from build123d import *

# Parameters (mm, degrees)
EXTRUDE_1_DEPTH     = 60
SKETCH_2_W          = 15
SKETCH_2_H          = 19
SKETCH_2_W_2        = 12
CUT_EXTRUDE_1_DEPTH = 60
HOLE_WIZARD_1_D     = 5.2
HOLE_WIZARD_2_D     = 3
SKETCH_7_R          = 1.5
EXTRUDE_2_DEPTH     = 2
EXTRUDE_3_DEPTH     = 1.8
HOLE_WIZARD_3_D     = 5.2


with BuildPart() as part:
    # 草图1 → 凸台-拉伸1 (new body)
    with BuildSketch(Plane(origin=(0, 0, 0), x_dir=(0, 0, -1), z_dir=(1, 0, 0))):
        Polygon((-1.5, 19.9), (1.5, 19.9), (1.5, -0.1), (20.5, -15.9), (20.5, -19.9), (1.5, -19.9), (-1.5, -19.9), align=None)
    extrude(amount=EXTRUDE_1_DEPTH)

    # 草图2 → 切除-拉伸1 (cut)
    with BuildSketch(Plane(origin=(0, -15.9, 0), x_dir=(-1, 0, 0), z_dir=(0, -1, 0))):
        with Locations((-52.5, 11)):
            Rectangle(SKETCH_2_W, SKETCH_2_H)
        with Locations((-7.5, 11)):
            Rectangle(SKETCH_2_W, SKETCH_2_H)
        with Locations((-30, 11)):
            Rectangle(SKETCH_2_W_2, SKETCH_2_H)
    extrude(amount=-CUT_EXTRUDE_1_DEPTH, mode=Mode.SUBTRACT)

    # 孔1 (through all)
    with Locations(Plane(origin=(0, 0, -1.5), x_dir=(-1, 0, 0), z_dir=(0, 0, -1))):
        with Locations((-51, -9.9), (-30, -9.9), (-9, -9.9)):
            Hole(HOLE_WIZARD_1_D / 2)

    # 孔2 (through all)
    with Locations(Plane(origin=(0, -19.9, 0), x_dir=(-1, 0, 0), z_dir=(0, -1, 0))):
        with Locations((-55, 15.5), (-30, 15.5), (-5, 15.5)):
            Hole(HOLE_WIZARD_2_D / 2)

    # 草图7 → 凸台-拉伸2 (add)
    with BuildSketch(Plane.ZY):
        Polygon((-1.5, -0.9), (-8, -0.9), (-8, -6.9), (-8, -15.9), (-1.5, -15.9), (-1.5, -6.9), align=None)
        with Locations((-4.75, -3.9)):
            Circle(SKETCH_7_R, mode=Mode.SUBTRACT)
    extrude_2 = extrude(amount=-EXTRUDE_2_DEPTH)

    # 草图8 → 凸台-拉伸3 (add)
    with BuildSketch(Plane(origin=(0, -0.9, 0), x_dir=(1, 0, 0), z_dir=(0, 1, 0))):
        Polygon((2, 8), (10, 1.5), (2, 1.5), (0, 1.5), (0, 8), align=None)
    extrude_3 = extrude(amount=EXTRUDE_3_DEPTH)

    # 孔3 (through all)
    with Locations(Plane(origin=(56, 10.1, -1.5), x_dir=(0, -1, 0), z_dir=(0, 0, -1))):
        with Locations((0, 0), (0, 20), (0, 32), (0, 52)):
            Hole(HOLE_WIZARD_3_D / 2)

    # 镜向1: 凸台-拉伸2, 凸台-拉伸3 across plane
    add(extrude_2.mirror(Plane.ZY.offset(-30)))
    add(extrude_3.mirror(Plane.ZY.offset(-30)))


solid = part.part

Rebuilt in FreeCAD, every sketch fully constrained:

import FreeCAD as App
import Part
import Sketcher

V = App.Vector

doc = App.newDocument("Part")
body = doc.addObject("PartDesign::Body", "Body")

sketch1 = doc.addObject("Sketcher::SketchObject", "Sketch")
body.addObject(sketch1)
sketch1.AttachmentSupport = (doc.YZ_Plane, [""])
sketch1.MapMode = "FlatFace"
sketch1.addGeometry(Part.LineSegment(V(19.9, -1.5, 0), V(19.9, 1.5, 0)), False)
sketch1.addGeometry(Part.LineSegment(V(19.9, 1.5, 0), V(-19.9, 1.5, 0)), False)
sketch1.addGeometry(Part.LineSegment(V(-19.9, 1.5, 0), V(-19.9, -20.5, 0)), False)
sketch1.addGeometry(Part.LineSegment(V(-19.9, -20.5, 0), V(-15.9, -20.5, 0)), False)
sketch1.addGeometry(Part.LineSegment(V(-15.9, -20.5, 0), V(-0.1, -1.5, 0)), False)
sketch1.addGeometry(Part.LineSegment(V(-0.1, -1.5, 0), V(19.9, -1.5, 0)), False)
sketch1.addConstraint(Sketcher.Constraint("Coincident", 0, 2, 1, 1))
sketch1.addConstraint(Sketcher.Constraint("Coincident", 1, 2, 2, 1))
sketch1.addConstraint(Sketcher.Constraint("Coincident", 2, 2, 3, 1))
sketch1.addConstraint(Sketcher.Constraint("Coincident", 3, 2, 4, 1))
sketch1.addConstraint(Sketcher.Constraint("Coincident", 4, 2, 5, 1))
sketch1.addConstraint(Sketcher.Constraint("Coincident", 5, 2, 0, 1))
sketch1.addConstraint(Sketcher.Constraint("Vertical", 0))
sketch1.addConstraint(Sketcher.Constraint("Horizontal", 1))
sketch1.addConstraint(Sketcher.Constraint("Vertical", 2))
sketch1.addConstraint(Sketcher.Constraint("Horizontal", 3))
sketch1.addConstraint(Sketcher.Constraint("Horizontal", 5))
sketch1.addConstraint(Sketcher.Constraint("Symmetric", 1, 2, 5, 2, -1, 1))
sketch1.addConstraint(Sketcher.Constraint("DistanceX", 3, 1, 3, 2, 4.0))
sketch1.addConstraint(Sketcher.Constraint("DistanceX", 5, 1, 5, 2, 20.0))
sketch1.addConstraint(Sketcher.Constraint("DistanceY", 0, 1, 0, 2, 3.0))
sketch1.addConstraint(Sketcher.Constraint("DistanceY", 2, 2, 2, 1, 22.0))
sketch1.addConstraint(Sketcher.Constraint("DistanceX", 1, 2, 1, 1, 39.8))
pad1 = doc.addObject("PartDesign::Pad", "Pad")
body.addObject(pad1)
pad1.Profile = sketch1
pad1.Length = 60

sketch2 = doc.addObject("Sketcher::SketchObject", "Sketch001")
body.addObject(sketch2)
sketch2.AttachmentSupport = (doc.XZ_Plane, [""])
sketch2.MapMode = "FlatFace"
sketch2.AttachmentOffset = App.Placement(V(0, 0, 15.9), App.Rotation())
sketch2.addGeometry(Part.LineSegment(V(60, -20, 0), V(60, -2, 0)), False)
sketch2.addGeometry(Part.LineSegment(V(60, -2, 0), V(45, -2, 0)), False)
sketch2.addGeometry(Part.LineSegment(V(45, -2, 0), V(45, -20, 0)), False)
sketch2.addGeometry(Part.LineSegment(V(45, -20, 0), V(60, -20, 0)), False)
sketch2.addGeometry(Part.LineSegment(V(15, -20, 0), V(15, -2, 0)), False)
sketch2.addGeometry(Part.LineSegment(V(15, -2, 0), V(0, -2, 0)), False)
sketch2.addGeometry(Part.LineSegment(V(0, -2, 0), V(0, -20, 0)), False)
sketch2.addGeometry(Part.LineSegment(V(0, -20, 0), V(15, -20, 0)), False)
sketch2.addGeometry(Part.LineSegment(V(36, -20, 0), V(36, -2, 0)), False)
sketch2.addGeometry(Part.LineSegment(V(36, -2, 0), V(24, -2, 0)), False)
sketch2.addGeometry(Part.LineSegment(V(24, -2, 0), V(24, -20, 0)), False)
sketch2.addGeometry(Part.LineSegment(V(24, -20, 0), V(36, -20, 0)), False)
sketch2.addConstraint(Sketcher.Constraint("Coincident", 0, 2, 1, 1))
sketch2.addConstraint(Sketcher.Constraint("Coincident", 1, 2, 2, 1))
sketch2.addConstraint(Sketcher.Constraint("Coincident", 2, 2, 3, 1))
sketch2.addConstraint(Sketcher.Constraint("Coincident", 3, 2, 0, 1))
sketch2.addConstraint(Sketcher.Constraint("Coincident", 4, 2, 5, 1))
sketch2.addConstraint(Sketcher.Constraint("Coincident", 5, 2, 6, 1))
sketch2.addConstraint(Sketcher.Constraint("Coincident", 6, 2, 7, 1))
sketch2.addConstraint(Sketcher.Constraint("Coincident", 7, 2, 4, 1))
sketch2.addConstraint(Sketcher.Constraint("Coincident", 8, 2, 9, 1))
sketch2.addConstraint(Sketcher.Constraint("Coincident", 9, 2, 10, 1))
sketch2.addConstraint(Sketcher.Constraint("Coincident", 10, 2, 11, 1))
sketch2.addConstraint(Sketcher.Constraint("Coincident", 11, 2, 8, 1))
sketch2.addConstraint(Sketcher.Constraint("Vertical", 0))
sketch2.addConstraint(Sketcher.Constraint("Horizontal", 1))
sketch2.addConstraint(Sketcher.Constraint("Vertical", 2))
sketch2.addConstraint(Sketcher.Constraint("Horizontal", 3))
sketch2.addConstraint(Sketcher.Constraint("Vertical", 4))
sketch2.addConstraint(Sketcher.Constraint("Horizontal", 5))
sketch2.addConstraint(Sketcher.Constraint("Vertical", 6))
sketch2.addConstraint(Sketcher.Constraint("Horizontal", 7))
sketch2.addConstraint(Sketcher.Constraint("Vertical", 8))
sketch2.addConstraint(Sketcher.Constraint("Horizontal", 9))
sketch2.addConstraint(Sketcher.Constraint("Vertical", 10))
sketch2.addConstraint(Sketcher.Constraint("Horizontal", 11))
sketch2.addConstraint(Sketcher.Constraint("PointOnObject", 5, 2, -2))
sketch2.addConstraint(Sketcher.Constraint("Horizontal", 1, 2, 4, 2))
sketch2.addConstraint(Sketcher.Constraint("Horizontal", 3, 2, 6, 2))
sketch2.addConstraint(Sketcher.Constraint("Horizontal", 5, 2, 8, 2))
sketch2.addConstraint(Sketcher.Constraint("Horizontal", 7, 2, 10, 2))
sketch2.addConstraint(Sketcher.Constraint("Equal", 3, 5))
sketch2.addConstraint(Sketcher.Constraint("DistanceX", 1, 2, 1, 1, 15.0))
sketch2.addConstraint(Sketcher.Constraint("DistanceX", 9, 2, 9, 1, 12.0))
sketch2.addConstraint(Sketcher.Constraint("DistanceY", 0, 1, 0, 2, 19.0))
sketch2.addConstraint(Sketcher.Constraint("DistanceX", -1, 1, 0, 2, 60.0))
sketch2.addConstraint(Sketcher.Constraint("DistanceX", -1, 1, 8, 2, 36.0))
sketch2.addConstraint(Sketcher.Constraint("DistanceY", 0, 2, -1, 1, 1.5))
pocket1 = doc.addObject("PartDesign::Pocket", "Pocket")
body.addObject(pocket1)
pocket1.Profile = sketch2
pocket1.Length = 60

sketch3 = doc.addObject("Sketcher::SketchObject", "Sketch002")
body.addObject(sketch3)
sketch3.AttachmentSupport = (doc.XY_Plane, [""])
sketch3.MapMode = "FlatFace"
sketch3.AttachmentOffset = App.Placement(V(0, 0, -1.5), App.Rotation())
sketch3.addGeometry(Part.Circle(V(51, -9.9, 0), V(0, 0, 1), 2.6), False)
sketch3.addGeometry(Part.Circle(V(30, -9.9, 0), V(0, 0, 1), 2.6), False)
sketch3.addGeometry(Part.Circle(V(9, -9.9, 0), V(0, 0, 1), 2.6), False)
sketch3.addConstraint(Sketcher.Constraint("Equal", 0, 1))
sketch3.addConstraint(Sketcher.Constraint("Equal", 1, 2))
sketch3.addConstraint(Sketcher.Constraint("Horizontal", 0, 3, 1, 3))
sketch3.addConstraint(Sketcher.Constraint("Horizontal", 1, 3, 2, 3))
sketch3.addConstraint(Sketcher.Constraint("Diameter", 0, 5.2))
sketch3.addConstraint(Sketcher.Constraint("DistanceX", -1, 1, 0, 3, 51.0))
sketch3.addConstraint(Sketcher.Constraint("DistanceX", -1, 1, 1, 3, 30.0))
sketch3.addConstraint(Sketcher.Constraint("DistanceX", -1, 1, 2, 3, 9.0))
sketch3.addConstraint(Sketcher.Constraint("DistanceY", 0, 3, -1, 1, 9.9))
doc.recompute()
hole = doc.addObject("PartDesign::Hole", "Hole")
body.addObject(hole)
hole.Profile = sketch3
hole.ThreadType = "None"
hole.Diameter = 5.2
hole.DepthType = "ThroughAll"
hole.Reversed = True

sketch4 = doc.addObject("Sketcher::SketchObject", "Sketch003")
body.addObject(sketch4)
sketch4.AttachmentSupport = (doc.XZ_Plane, [""])
sketch4.MapMode = "FlatFace"
sketch4.AttachmentOffset = App.Placement(V(0, 0, 19.9), App.Rotation())
sketch4.addGeometry(Part.Circle(V(55, -15.5, 0), V(0, 0, 1), 1.5), False)
sketch4.addGeometry(Part.Circle(V(30, -15.5, 0), V(0, 0, 1), 1.5), False)
sketch4.addGeometry(Part.Circle(V(5, -15.5, 0), V(0, 0, 1), 1.5), False)
sketch4.addConstraint(Sketcher.Constraint("Equal", 0, 1))
sketch4.addConstraint(Sketcher.Constraint("Equal", 1, 2))
sketch4.addConstraint(Sketcher.Constraint("Horizontal", 0, 3, 1, 3))
sketch4.addConstraint(Sketcher.Constraint("Horizontal", 1, 3, 2, 3))
sketch4.addConstraint(Sketcher.Constraint("Diameter", 0, 3.0))
sketch4.addConstraint(Sketcher.Constraint("DistanceX", -1, 1, 0, 3, 55.0))
sketch4.addConstraint(Sketcher.Constraint("DistanceX", -1, 1, 1, 3, 30.0))
sketch4.addConstraint(Sketcher.Constraint("DistanceX", -1, 1, 2, 3, 5.0))
sketch4.addConstraint(Sketcher.Constraint("DistanceY", 0, 3, -1, 1, 15.5))
doc.recompute()
hole2 = doc.addObject("PartDesign::Hole", "Hole001")
body.addObject(hole2)
hole2.Profile = sketch4
hole2.ThreadType = "None"
hole2.Diameter = 3
hole2.DepthType = "ThroughAll"

sketch5 = doc.addObject("Sketcher::SketchObject", "Sketch004")
body.addObject(sketch5)
sketch5.AttachmentSupport = (doc.YZ_Plane, [""])
sketch5.MapMode = "FlatFace"
sketch5.addGeometry(Part.LineSegment(V(-0.9, -1.5, 0), V(-0.9, -8, 0)), False)
sketch5.addGeometry(Part.LineSegment(V(-0.9, -8, 0), V(-15.9, -8, 0)), False)
sketch5.addGeometry(Part.LineSegment(V(-15.9, -8, 0), V(-15.9, -1.5, 0)), False)
sketch5.addGeometry(Part.LineSegment(V(-15.9, -1.5, 0), V(-0.9, -1.5, 0)), False)
sketch5.addGeometry(Part.Circle(V(-3.9, -4.8, 0), V(0, 0, 1), 1.5), False)
sketch5.addConstraint(Sketcher.Constraint("Coincident", 0, 2, 1, 1))
sketch5.addConstraint(Sketcher.Constraint("Coincident", 1, 2, 2, 1))
sketch5.addConstraint(Sketcher.Constraint("Coincident", 2, 2, 3, 1))
sketch5.addConstraint(Sketcher.Constraint("Coincident", 3, 2, 0, 1))
sketch5.addConstraint(Sketcher.Constraint("Vertical", 0))
sketch5.addConstraint(Sketcher.Constraint("Horizontal", 1))
sketch5.addConstraint(Sketcher.Constraint("Vertical", 2))
sketch5.addConstraint(Sketcher.Constraint("Horizontal", 3))
sketch5.addConstraint(Sketcher.Constraint("Diameter", 4, 3.0))
sketch5.addConstraint(Sketcher.Constraint("DistanceX", 1, 2, 1, 1, 15.0))
sketch5.addConstraint(Sketcher.Constraint("DistanceY", 0, 2, 0, 1, 6.5))
sketch5.addConstraint(Sketcher.Constraint("DistanceY", 0, 2, -1, 1, 8.0))
sketch5.addConstraint(Sketcher.Constraint("DistanceX", 4, 3, 0, 2, 3.0))
sketch5.addConstraint(Sketcher.Constraint("DistanceX", 4, 3, -1, 1, 3.9))
sketch5.addConstraint(Sketcher.Constraint("DistanceY", 4, 3, -1, 1, 4.75))
pad2 = doc.addObject("PartDesign::Pad", "Pad001")
body.addObject(pad2)
pad2.Profile = sketch5
pad2.Length = 2

sketch6 = doc.addObject("Sketcher::SketchObject", "Sketch005")
body.addObject(sketch6)
sketch6.AttachmentSupport = (doc.XZ_Plane, [""])
sketch6.MapMode = "FlatFace"
sketch6.AttachmentOffset = App.Placement(V(0, 0, 0.9), App.Rotation())
sketch6.addGeometry(Part.LineSegment(V(10, -1.5, 0), V(2, -8, 0)), False)
sketch6.addGeometry(Part.LineSegment(V(2, -8, 0), V(0, -8, 0)), False)
sketch6.addGeometry(Part.LineSegment(V(0, -8, 0), V(0, -1.5, 0)), False)
sketch6.addGeometry(Part.LineSegment(V(0, -1.5, 0), V(10, -1.5, 0)), False)
sketch6.addConstraint(Sketcher.Constraint("Coincident", 0, 2, 1, 1))
sketch6.addConstraint(Sketcher.Constraint("Coincident", 1, 2, 2, 1))
sketch6.addConstraint(Sketcher.Constraint("Coincident", 2, 2, 3, 1))
sketch6.addConstraint(Sketcher.Constraint("Coincident", 3, 2, 0, 1))
sketch6.addConstraint(Sketcher.Constraint("Horizontal", 1))
sketch6.addConstraint(Sketcher.Constraint("Vertical", 2))
sketch6.addConstraint(Sketcher.Constraint("Horizontal", 3))
sketch6.addConstraint(Sketcher.Constraint("PointOnObject", 1, 2, -2))
sketch6.addConstraint(Sketcher.Constraint("DistanceX", 1, 2, 1, 1, 2.0))
sketch6.addConstraint(Sketcher.Constraint("DistanceX", 3, 1, 3, 2, 10.0))
sketch6.addConstraint(Sketcher.Constraint("DistanceY", 2, 1, 2, 2, 6.5))
sketch6.addConstraint(Sketcher.Constraint("DistanceY", 0, 2, -1, 1, 8.0))
pad3 = doc.addObject("PartDesign::Pad", "Pad002")
body.addObject(pad3)
pad3.Profile = sketch6
pad3.Length = 1.8
pad3.Reversed = True

sketch7 = doc.addObject("Sketcher::SketchObject", "Sketch006")
body.addObject(sketch7)
sketch7.AttachmentSupport = (doc.XY_Plane, [""])
sketch7.MapMode = "FlatFace"
sketch7.AttachmentOffset = App.Placement(V(0, 0, -1.5), App.Rotation())
sketch7.addGeometry(Part.Circle(V(56, 10.1, 0), V(0, 0, 1), 2.6), False)
sketch7.addGeometry(Part.Circle(V(36, 10.1, 0), V(0, 0, 1), 2.6), False)
sketch7.addGeometry(Part.Circle(V(24, 10.1, 0), V(0, 0, 1), 2.6), False)
sketch7.addGeometry(Part.Circle(V(4, 10.1, 0), V(0, 0, 1), 2.6), False)
sketch7.addConstraint(Sketcher.Constraint("Equal", 0, 1))
sketch7.addConstraint(Sketcher.Constraint("Equal", 1, 2))
sketch7.addConstraint(Sketcher.Constraint("Equal", 2, 3))
sketch7.addConstraint(Sketcher.Constraint("Horizontal", 0, 3, 1, 3))
sketch7.addConstraint(Sketcher.Constraint("Horizontal", 1, 3, 2, 3))
sketch7.addConstraint(Sketcher.Constraint("Horizontal", 2, 3, 3, 3))
sketch7.addConstraint(Sketcher.Constraint("Diameter", 0, 5.2))
sketch7.addConstraint(Sketcher.Constraint("DistanceX", -1, 1, 0, 3, 56.0))
sketch7.addConstraint(Sketcher.Constraint("DistanceX", -1, 1, 1, 3, 36.0))
sketch7.addConstraint(Sketcher.Constraint("DistanceX", -1, 1, 2, 3, 24.0))
sketch7.addConstraint(Sketcher.Constraint("DistanceX", -1, 1, 3, 3, 4.0))
sketch7.addConstraint(Sketcher.Constraint("DistanceY", -1, 1, 0, 3, 10.1))
doc.recompute()
hole3 = doc.addObject("PartDesign::Hole", "Hole002")
body.addObject(hole3)
hole3.Profile = sketch7
hole3.ThreadType = "None"
hole3.Diameter = 5.2
hole3.DepthType = "ThroughAll"
hole3.Reversed = True
doc.recompute()

datumplane = doc.addObject("PartDesign::Plane", "DatumPlane")
body.addObject(datumplane)
datumplane.AttachmentSupport = (doc.YZ_Plane, [""])
datumplane.MapMode = "FlatFace"
datumplane.AttachmentOffset = App.Placement(V(0, 0, 30), App.Rotation())
mirrored = doc.addObject("PartDesign::Mirrored", "Mirrored")
body.addObject(mirrored)
mirrored.Originals = [pad2, pad3]
mirrored.MirrorPlane = (datumplane, [""])
body.Tip = mirrored

doc.recompute()
